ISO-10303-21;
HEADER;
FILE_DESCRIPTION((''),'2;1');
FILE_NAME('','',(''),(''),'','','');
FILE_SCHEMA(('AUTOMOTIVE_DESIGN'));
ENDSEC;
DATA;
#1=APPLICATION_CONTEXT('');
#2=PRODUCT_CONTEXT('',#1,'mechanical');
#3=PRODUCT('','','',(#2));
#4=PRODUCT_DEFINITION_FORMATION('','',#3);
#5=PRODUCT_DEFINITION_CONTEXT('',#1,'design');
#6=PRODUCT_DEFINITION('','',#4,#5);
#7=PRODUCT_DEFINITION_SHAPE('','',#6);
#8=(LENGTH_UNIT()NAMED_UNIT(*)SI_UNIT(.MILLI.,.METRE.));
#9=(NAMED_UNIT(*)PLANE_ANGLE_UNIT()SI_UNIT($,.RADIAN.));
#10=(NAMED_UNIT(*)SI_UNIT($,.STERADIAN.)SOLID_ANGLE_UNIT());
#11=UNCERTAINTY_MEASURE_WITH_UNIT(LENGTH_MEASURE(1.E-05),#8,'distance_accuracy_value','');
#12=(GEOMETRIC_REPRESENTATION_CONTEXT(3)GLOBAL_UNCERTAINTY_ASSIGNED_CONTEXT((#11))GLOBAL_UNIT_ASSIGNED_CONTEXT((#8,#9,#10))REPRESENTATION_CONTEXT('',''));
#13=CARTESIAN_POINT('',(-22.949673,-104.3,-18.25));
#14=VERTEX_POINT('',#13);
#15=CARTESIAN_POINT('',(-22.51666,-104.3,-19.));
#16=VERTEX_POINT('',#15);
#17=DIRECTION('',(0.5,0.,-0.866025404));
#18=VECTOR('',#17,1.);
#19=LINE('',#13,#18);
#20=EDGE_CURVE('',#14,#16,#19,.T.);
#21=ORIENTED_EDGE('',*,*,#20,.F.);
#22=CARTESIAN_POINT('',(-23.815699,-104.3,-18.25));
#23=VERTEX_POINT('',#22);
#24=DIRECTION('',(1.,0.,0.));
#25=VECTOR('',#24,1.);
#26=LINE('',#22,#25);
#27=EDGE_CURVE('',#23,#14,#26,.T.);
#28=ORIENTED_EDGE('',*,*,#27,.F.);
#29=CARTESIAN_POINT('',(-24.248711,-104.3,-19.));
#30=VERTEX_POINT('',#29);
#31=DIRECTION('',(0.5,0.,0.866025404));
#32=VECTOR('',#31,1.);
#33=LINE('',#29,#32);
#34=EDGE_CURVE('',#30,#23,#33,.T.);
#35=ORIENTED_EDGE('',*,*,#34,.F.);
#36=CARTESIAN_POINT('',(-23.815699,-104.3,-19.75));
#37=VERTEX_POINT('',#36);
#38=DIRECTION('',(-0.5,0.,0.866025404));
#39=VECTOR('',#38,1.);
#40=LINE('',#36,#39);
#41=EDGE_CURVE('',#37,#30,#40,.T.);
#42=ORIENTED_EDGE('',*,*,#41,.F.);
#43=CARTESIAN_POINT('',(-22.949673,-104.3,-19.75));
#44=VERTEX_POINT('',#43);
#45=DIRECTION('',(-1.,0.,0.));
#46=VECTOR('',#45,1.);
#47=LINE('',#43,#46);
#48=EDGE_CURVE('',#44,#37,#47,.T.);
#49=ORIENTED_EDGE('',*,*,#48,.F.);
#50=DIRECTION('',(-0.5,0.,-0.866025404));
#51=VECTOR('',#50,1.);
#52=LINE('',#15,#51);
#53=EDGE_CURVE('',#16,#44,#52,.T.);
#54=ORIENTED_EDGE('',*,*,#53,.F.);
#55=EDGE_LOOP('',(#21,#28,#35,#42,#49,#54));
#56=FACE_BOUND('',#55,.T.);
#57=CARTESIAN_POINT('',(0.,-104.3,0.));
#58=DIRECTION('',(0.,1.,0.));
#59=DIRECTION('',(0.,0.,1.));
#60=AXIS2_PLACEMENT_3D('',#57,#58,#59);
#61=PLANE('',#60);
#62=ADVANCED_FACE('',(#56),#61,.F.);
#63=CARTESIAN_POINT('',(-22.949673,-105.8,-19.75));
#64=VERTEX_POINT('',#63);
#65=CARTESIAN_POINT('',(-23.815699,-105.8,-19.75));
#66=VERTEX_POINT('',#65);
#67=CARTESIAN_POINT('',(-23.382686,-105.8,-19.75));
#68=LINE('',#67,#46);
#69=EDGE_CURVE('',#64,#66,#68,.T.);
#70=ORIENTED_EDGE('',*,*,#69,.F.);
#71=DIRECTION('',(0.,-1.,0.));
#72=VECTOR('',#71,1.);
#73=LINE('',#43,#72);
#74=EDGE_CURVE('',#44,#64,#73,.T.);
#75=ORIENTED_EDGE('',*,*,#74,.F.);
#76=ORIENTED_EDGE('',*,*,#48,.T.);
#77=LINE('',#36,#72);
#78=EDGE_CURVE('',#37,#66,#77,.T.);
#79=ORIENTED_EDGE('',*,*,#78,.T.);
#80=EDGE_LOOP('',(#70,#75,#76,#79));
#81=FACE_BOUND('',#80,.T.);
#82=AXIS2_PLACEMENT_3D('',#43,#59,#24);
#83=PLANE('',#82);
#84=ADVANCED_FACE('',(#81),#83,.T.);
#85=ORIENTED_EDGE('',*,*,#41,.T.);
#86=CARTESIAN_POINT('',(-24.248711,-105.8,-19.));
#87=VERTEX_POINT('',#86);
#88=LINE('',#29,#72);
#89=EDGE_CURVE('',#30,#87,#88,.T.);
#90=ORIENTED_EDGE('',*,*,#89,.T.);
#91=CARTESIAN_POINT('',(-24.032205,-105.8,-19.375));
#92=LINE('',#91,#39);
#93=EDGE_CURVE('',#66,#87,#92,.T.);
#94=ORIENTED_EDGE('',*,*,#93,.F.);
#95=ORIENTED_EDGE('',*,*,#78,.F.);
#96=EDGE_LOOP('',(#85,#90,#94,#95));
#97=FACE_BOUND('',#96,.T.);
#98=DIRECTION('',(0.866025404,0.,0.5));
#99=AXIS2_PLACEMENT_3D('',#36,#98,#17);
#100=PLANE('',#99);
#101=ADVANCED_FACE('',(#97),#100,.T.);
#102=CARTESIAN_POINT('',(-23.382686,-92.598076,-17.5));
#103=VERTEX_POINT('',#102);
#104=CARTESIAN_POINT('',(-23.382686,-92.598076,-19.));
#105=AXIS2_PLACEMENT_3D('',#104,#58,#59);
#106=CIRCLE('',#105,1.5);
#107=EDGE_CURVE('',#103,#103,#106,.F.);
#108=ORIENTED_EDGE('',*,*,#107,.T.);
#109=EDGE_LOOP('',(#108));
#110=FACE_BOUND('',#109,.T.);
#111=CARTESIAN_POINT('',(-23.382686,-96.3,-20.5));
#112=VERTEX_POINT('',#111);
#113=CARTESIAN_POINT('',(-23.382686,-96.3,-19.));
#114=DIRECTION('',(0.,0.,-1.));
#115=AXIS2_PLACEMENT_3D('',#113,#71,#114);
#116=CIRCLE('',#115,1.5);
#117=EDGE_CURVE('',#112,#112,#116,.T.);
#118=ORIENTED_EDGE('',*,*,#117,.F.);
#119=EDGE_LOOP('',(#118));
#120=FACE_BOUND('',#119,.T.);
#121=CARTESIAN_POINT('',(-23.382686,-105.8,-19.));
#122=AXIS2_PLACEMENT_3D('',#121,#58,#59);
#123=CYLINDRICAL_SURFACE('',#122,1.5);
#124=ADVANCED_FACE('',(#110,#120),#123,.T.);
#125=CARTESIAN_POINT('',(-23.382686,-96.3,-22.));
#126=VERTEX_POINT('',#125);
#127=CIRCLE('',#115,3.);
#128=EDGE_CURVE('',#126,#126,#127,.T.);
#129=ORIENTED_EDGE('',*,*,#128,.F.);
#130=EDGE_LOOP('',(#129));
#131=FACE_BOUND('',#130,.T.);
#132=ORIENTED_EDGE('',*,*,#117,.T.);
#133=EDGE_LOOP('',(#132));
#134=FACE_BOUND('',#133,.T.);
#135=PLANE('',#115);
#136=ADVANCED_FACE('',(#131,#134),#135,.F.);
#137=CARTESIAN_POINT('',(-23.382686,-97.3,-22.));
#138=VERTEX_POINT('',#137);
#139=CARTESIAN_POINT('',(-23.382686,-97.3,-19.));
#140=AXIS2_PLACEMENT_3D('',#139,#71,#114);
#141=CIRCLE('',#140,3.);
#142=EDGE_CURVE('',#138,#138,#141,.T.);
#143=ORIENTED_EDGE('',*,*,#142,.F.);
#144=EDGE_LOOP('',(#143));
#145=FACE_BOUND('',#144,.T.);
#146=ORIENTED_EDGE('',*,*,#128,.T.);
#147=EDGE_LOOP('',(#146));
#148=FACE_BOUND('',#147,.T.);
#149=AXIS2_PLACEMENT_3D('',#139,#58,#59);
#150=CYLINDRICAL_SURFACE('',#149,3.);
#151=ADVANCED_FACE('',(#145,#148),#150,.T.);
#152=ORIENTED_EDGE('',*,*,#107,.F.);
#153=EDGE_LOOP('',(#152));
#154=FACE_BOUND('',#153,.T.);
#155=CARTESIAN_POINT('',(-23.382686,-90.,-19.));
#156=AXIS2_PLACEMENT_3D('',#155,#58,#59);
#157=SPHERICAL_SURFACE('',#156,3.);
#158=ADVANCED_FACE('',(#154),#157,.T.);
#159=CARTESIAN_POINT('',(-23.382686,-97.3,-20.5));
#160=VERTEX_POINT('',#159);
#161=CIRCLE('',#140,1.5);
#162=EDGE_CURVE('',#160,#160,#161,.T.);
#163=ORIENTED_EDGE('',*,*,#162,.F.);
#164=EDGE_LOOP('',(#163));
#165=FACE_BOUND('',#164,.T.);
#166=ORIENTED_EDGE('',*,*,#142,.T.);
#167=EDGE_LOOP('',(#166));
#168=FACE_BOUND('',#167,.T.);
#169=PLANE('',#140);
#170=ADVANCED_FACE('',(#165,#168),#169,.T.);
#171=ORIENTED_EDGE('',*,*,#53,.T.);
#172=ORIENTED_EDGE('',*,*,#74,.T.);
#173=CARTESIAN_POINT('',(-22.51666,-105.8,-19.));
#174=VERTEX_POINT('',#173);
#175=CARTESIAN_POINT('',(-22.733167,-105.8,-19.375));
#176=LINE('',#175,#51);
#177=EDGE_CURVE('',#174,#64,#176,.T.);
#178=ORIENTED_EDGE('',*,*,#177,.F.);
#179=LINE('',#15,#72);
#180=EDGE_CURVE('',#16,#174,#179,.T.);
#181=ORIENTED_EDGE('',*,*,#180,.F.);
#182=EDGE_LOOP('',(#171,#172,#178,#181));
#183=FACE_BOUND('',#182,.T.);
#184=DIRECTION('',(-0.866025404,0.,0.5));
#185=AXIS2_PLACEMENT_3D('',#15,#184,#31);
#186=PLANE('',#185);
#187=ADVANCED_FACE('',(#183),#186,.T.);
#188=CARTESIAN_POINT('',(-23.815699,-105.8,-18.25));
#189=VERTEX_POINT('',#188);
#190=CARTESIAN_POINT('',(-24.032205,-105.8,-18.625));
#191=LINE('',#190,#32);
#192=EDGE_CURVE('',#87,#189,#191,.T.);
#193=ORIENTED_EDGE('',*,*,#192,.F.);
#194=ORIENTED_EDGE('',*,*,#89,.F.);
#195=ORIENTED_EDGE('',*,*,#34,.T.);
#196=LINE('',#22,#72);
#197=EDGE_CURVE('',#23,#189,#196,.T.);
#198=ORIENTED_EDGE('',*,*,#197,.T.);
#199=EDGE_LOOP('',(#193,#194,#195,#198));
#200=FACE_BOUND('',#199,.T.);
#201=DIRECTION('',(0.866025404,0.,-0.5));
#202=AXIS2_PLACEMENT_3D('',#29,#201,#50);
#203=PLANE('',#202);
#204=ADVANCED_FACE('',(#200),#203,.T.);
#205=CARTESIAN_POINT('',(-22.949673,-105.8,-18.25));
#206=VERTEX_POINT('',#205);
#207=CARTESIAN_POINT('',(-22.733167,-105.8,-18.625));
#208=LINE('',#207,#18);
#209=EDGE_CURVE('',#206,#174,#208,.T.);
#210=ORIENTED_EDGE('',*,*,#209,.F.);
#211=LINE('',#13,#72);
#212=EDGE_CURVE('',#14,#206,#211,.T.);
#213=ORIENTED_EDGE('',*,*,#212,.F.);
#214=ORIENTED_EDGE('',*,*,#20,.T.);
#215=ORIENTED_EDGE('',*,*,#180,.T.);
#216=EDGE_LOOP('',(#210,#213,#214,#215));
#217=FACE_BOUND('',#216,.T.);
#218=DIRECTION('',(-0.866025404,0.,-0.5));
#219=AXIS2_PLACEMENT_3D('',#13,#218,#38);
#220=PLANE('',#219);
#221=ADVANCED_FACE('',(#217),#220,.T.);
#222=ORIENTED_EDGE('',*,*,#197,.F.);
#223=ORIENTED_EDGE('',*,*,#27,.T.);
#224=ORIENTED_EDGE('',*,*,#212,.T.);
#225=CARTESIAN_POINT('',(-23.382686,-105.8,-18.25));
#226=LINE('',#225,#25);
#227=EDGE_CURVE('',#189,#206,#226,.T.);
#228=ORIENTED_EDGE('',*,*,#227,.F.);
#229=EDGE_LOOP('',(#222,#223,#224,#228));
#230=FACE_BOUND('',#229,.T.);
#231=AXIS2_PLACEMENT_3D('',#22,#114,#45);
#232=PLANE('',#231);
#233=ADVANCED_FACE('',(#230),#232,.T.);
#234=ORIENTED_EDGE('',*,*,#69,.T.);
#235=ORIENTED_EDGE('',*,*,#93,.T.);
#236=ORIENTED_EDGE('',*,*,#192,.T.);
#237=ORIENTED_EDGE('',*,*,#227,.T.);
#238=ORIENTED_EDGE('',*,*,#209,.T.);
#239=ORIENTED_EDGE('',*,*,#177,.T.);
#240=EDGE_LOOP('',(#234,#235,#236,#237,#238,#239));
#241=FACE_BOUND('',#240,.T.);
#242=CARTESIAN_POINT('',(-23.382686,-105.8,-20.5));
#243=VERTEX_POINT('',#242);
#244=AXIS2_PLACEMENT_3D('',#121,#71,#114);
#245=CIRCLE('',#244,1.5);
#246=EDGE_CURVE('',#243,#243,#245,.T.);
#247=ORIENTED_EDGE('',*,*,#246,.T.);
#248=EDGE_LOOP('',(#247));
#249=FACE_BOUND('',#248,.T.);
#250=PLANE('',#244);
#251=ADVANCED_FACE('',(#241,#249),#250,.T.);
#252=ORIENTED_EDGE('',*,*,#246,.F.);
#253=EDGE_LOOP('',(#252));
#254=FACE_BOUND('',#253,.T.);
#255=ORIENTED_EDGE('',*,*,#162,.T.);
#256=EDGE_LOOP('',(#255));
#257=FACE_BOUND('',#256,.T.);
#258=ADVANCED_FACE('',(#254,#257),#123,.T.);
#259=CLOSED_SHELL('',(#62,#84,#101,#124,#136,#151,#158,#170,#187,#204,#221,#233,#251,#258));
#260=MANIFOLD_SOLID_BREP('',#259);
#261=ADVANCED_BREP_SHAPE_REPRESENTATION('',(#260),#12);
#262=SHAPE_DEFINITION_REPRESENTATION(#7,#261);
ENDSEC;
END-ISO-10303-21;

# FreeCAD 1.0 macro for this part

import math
import FreeCAD as App
import Part
import Sketcher
from FreeCAD import Vector
Q = App.Units.Quantity

doc = App.newDocument("Part")
body = doc.addObject("PartDesign::Body", "Body")

# Sketch on XZ plane
sketch1 = doc.addObject("Sketcher::SketchObject", "Sketch")
body.addObject(sketch1)
sketch1.AttachmentSupport = (doc.XZ_Plane, [""])
sketch1.MapMode = "FlatFace"
sketch1.AttachmentOffset = App.Placement(Vector(0, 0, 90), App.Rotation())
sketch1.addGeometry(Part.Circle(Vector(-23.382686, -19, 0), Vector(0, 0, 1), 1.5), False)
sketch1.addConstraint(Sketcher.Constraint("Diameter", 0, 3.0))
sketch1.addConstraint(Sketcher.Constraint("DistanceY", 0, 3, -1, 1, 19.0))
sketch1.addConstraint(Sketcher.Constraint("DistanceX", 0, 3, -1, 1, 23.382686))
pad1 = doc.addObject("PartDesign::Pad", "Pad")
body.addObject(pad1)
pad1.Profile = sketch1
pad1.Length = 15.8

# Sketch on XZ plane
sketch2 = doc.addObject("Sketcher::SketchObject", "Sketch001")
body.addObject(sketch2)
sketch2.AttachmentSupport = (doc.XZ_Plane, [""])
sketch2.MapMode = "FlatFace"
sketch2.AttachmentOffset = App.Placement(Vector(0, 0, 90), App.Rotation())
sketch2.addGeometry(Part.LineSegment(Vector(-23.382686, -16, 0), Vector(-23.382686, -22, 0)), False)
sketch2.addGeometry(Part.ArcOfCircle(Part.Circle(Vector(-23.382686, -19, 0), Vector(0, 0, 1), 3), math.radians(-90), math.radians(90)), False)
sketch2.addGeometry(Part.LineSegment(Vector(-23.382686, -22, 0), Vector(-23.382686, -16, 0)), True)  # axis
sketch2.addConstraint(Sketcher.Constraint("Coincident", 0, 1, 1, 2))
sketch2.addConstraint(Sketcher.Constraint("Coincident", 1, 1, 0, 2))
sketch2.addConstraint(Sketcher.Constraint("Vertical", 0))
sketch2.addConstraint(Sketcher.Constraint("Vertical", 2))
sketch2.addConstraint(Sketcher.Constraint("Coincident", 2, 1, 1, 1))
sketch2.addConstraint(Sketcher.Constraint("Vertical", 1, 3, 0, 1))
sketch2.addConstraint(Sketcher.Constraint("Equal", 0, 2))
sketch2.addConstraint(Sketcher.Constraint("Radius", 1, 3.0))
sketch2.addConstraint(Sketcher.Constraint("DistanceY", 1, 3, -1, 1, 19.0))
sketch2.addConstraint(Sketcher.Constraint("DistanceX", 1, 3, -1, 1, 23.382686))
revolution = doc.addObject("PartDesign::Revolution", "Revolution")
body.addObject(revolution)
revolution.Profile = sketch2
revolution.ReferenceAxis = (sketch2, ["Axis0"])
revolution.Angle = 360

# Sketch on XZ plane
sketch3 = doc.addObject("Sketcher::SketchObject", "Sketch002")
body.addObject(sketch3)
sketch3.AttachmentSupport = (doc.XZ_Plane, [""])
sketch3.MapMode = "FlatFace"
sketch3.AttachmentOffset = App.Placement(Vector(0, 0, 96.3), App.Rotation())
sketch3.addGeometry(Part.Circle(Vector(-23.382686, -19, 0), Vector(0, 0, 1), 3), False)
sketch3.addConstraint(Sketcher.Constraint("Diameter", 0, 6.0))
sketch3.addConstraint(Sketcher.Constraint("DistanceY", 0, 3, -1, 1, 19.0))
sketch3.addConstraint(Sketcher.Constraint("DistanceX", 0, 3, -1, 1, 23.382686))
pad2 = doc.addObject("PartDesign::Pad", "Pad001")
body.addObject(pad2)
pad2.Profile = sketch3
pad2.Length = 1

# Sketch on XZ plane
sketch4 = doc.addObject("Sketcher::SketchObject", "Sketch003")
body.addObject(sketch4)
sketch4.AttachmentSupport = (doc.XZ_Plane, [""])
sketch4.MapMode = "FlatFace"
sketch4.AttachmentOffset = App.Placement(Vector(0, 0, 105.9), App.Rotation())
sketch4.addGeometry(Part.LineSegment(Vector(-22.51666, -19, 0), Vector(-22.949673, -19.75, 0)), False)
sketch4.addGeometry(Part.LineSegment(Vector(-22.949673, -19.75, 0), Vector(-23.815699, -19.75, 0)), False)
sketch4.addGeometry(Part.LineSegment(Vector(-23.815699, -19.75, 0), Vector(-24.248711, -19, 0)), False)
sketch4.addGeometry(Part.LineSegment(Vector(-24.248711, -19, 0), Vector(-23.815699, -18.25, 0)), False)
sketch4.addGeometry(Part.LineSegment(Vector(-23.815699, -18.25, 0), Vector(-22.949673, -18.25, 0)), False)
sketch4.addGeometry(Part.LineSegment(Vector(-22.949673, -18.25, 0), Vector(-22.51666, -19, 0)), False)
sketch4.addConstraint(Sketcher.Constraint("Coincident", 0, 2, 1, 1))
sketch4.addConstraint(Sketcher.Constraint("Coincident", 1, 2, 2, 1))
sketch4.addConstraint(Sketcher.Constraint("Coincident", 2, 2, 3, 1))
sketch4.addConstraint(Sketcher.Constraint("Coincident", 3, 2, 4, 1))
sketch4.addConstraint(Sketcher.Constraint("Coincident", 4, 2, 5, 1))
sketch4.addConstraint(Sketcher.Constraint("Coincident", 5, 2, 0, 1))
sketch4.addConstraint(Sketcher.Constraint("Horizontal", 1))
sketch4.addConstraint(Sketcher.Constraint("Horizontal", 4))
sketch4.addConstraint(Sketcher.Constraint("Parallel", 0, 3))
sketch4.addConstraint(Sketcher.Constraint("Parallel", 2, 5))
sketch4.addConstraint(Sketcher.Constraint("Horizontal", 2, 2, 5, 2))
sketch4.addConstraint(Sketcher.Constraint("Vertical", 1, 2, 3, 2))
sketch4.addConstraint(Sketcher.Constraint("Vertical", 0, 2, 4, 2))
sketch4.addConstraint(Sketcher.Constraint("Angle", 0, Q("-120 deg")))
sketch4.addConstraint(Sketcher.Constraint("DistanceY", 2, 2, -1, 1, 19.0))
sketch4.addConstraint(Sketcher.Constraint("DistanceY", 1, 2, 3, 2, 1.5))
sketch4.addConstraint(Sketcher.Constraint("DistanceX", 1, 2, -1, 1, 23.815699))
sketch4.addConstraint(Sketcher.Constraint("DistanceX", 1, 2, 1, 1, 0.866025))
pocket1 = doc.addObject("PartDesign::Pocket", "Pocket")
body.addObject(pocket1)
pocket1.Profile = sketch4
pocket1.Length = 1.6

doc.recompute()
